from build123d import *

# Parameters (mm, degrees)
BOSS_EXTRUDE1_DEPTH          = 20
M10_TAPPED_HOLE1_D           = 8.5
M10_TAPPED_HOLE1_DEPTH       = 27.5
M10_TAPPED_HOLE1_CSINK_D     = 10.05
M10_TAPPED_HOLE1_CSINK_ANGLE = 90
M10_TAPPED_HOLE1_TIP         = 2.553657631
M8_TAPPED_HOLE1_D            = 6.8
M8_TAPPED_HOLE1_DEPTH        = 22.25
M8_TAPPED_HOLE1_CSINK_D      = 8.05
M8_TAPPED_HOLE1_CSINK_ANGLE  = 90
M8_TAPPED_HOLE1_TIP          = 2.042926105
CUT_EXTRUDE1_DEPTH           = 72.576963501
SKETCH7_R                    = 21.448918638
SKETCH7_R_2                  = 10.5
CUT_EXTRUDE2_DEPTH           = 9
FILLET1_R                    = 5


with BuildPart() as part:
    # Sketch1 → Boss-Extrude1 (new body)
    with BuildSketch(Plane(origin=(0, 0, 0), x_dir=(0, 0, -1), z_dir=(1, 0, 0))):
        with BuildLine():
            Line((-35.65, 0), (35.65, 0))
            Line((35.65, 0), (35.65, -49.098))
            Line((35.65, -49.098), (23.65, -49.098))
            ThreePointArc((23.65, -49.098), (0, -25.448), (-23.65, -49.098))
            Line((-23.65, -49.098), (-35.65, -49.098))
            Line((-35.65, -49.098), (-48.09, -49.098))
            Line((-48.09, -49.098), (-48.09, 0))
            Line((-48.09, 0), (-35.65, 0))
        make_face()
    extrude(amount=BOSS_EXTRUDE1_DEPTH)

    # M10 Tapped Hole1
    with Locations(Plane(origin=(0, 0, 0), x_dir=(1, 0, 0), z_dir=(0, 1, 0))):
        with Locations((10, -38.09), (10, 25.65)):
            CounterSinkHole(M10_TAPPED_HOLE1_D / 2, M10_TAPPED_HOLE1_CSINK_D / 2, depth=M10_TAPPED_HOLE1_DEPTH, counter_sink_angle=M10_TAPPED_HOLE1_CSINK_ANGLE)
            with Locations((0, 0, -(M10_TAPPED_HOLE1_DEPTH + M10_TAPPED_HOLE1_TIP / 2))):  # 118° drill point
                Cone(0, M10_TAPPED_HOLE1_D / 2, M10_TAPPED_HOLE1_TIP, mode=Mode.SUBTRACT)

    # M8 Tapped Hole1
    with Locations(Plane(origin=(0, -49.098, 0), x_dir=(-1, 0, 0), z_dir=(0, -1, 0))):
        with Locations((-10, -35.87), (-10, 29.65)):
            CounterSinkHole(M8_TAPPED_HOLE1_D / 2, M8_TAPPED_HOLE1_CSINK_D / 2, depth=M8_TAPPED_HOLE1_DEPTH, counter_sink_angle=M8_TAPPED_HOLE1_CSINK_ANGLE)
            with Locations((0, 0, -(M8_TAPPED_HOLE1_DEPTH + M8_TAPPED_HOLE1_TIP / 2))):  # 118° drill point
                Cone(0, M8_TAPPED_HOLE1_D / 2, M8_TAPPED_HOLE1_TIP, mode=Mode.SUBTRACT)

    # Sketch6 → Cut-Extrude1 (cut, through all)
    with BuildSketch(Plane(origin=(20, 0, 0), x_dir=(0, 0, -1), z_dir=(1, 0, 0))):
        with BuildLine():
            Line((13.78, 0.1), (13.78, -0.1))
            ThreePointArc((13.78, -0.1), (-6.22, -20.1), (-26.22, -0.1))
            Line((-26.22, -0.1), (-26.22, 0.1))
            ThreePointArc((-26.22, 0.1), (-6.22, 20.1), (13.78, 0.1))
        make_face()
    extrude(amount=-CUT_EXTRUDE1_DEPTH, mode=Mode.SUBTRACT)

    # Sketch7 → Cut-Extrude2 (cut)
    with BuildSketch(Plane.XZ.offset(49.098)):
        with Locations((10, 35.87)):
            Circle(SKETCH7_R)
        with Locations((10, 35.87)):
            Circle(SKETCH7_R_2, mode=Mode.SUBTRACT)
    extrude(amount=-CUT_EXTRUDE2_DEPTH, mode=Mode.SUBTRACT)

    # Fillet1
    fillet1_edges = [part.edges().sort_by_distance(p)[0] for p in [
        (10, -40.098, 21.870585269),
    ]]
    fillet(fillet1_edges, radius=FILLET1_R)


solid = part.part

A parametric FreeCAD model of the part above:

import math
import FreeCAD as App
import Part
import Sketcher
Q = App.Units.Quantity


def edges_at(feature, points):
    """Names of the edges that pass closest to the given points."""
    edges = feature.Shape.Edges
    near = lambda p: min(range(len(edges)), key=lambda i: edges[i].distToShape(Part.Vertex(*p))[0])
    return sorted({f"Edge{near(p) + 1}" for p in points})

doc = App.newDocument("Part")
body = doc.addObject("PartDesign::Body", "Body")

# Sketch on YZ plane
sketch1 = body.newObject("Sketcher::SketchObject", "Sketch")
sketch1.AttachmentSupport = (doc.getObject("YZ_Plane"), [""])
sketch1.MapMode = "FlatFace"
sketch1.addGeometry([
    Part.LineSegment(App.Vector(-49.098, -35.65, 0), App.Vector(0, -35.65, 0)),  # 0
    Part.LineSegment(App.Vector(0, -35.65, 0), App.Vector(0, 48.09, 0)),  # 1
    Part.LineSegment(App.Vector(0, 48.09, 0), App.Vector(-49.098, 48.09, 0)),  # 2
    Part.LineSegment(App.Vector(-49.098, 48.09, 0), App.Vector(-49.098, 23.65, 0)),  # 3
    Part.ArcOfCircle(Part.Circle(App.Vector(-49.098, 0, 0), App.Vector(0, 0, 1), 23.65), math.radians(-90), math.radians(90)),  # 4
    Part.LineSegment(App.Vector(-49.098, -23.65, 0), App.Vector(-49.098, -35.65, 0)),  # 5
], False)
sketch1.addConstraint([
    Sketcher.Constraint("Coincident", 0, 2, 1, 1),
    Sketcher.Constraint("Coincident", 1, 2, 2, 1),
    Sketcher.Constraint("Coincident", 2, 2, 3, 1),
    Sketcher.Constraint("Coincident", 3, 2, 4, 2),
    Sketcher.Constraint("Coincident", 4, 1, 5, 1),
    Sketcher.Constraint("Coincident", 5, 2, 0, 1),
    Sketcher.Constraint("Horizontal", 0),
    Sketcher.Constraint("Vertical", 1),
    Sketcher.Constraint("Horizontal", 2),
    Sketcher.Constraint("Vertical", 3),
    Sketcher.Constraint("Vertical", 5),
    Sketcher.Constraint("Symmetric", 3, 2, 4, 1, -1),
    Sketcher.Constraint("PointOnObject", 0, 2, -2),
    Sketcher.Constraint("Vertical", 4, 3, 2, 2),
    Sketcher.Constraint("DistanceY", 5, 2, 5, 1, Q("12 mm")),
    Sketcher.Constraint("Radius", 4, Q("23.65 mm")),
    Sketcher.Constraint("DistanceY", 1, 1, 1, 2, Q("83.74 mm")),
    Sketcher.Constraint("DistanceX", 0, 1, 0, 2, Q("49.098 mm")),
])
pad1 = body.newObject("PartDesign::Pad", "Pad")
pad1.Profile = sketch1
pad1.Length = 20

# Sketch on XZ plane
sketch2 = body.newObject("Sketcher::SketchObject", "Sketch001")
sketch2.AttachmentSupport = (doc.getObject("XZ_Plane"), [""])
sketch2.MapMode = "FlatFace"
sketch2.addGeometry([
    Part.Circle(App.Vector(10, 38.09, 0), App.Vector(0, 0, 1), 4.25),
    Part.Circle(App.Vector(10, -25.65, 0), App.Vector(0, 0, 1), 4.25),
], False)
sketch2.addConstraint([
    Sketcher.Constraint("Equal", 0, 1),
    Sketcher.Constraint("Vertical", 0, 3, 1, 3),
    Sketcher.Constraint("Diameter", 0, Q("8.5 mm")),
    Sketcher.Constraint("DistanceX", -1, 1, 0, 3, Q("10 mm")),
    Sketcher.Constraint("DistanceY", -1, 1, 0, 3, Q("38.09 mm")),
    Sketcher.Constraint("DistanceY", 1, 3, -1, 1, Q("25.65 mm")),
])
doc.recompute()
hole = body.newObject("PartDesign::Hole", "Hole")
hole.Profile = sketch2
hole.ThreadType = "None"
hole.Diameter = 8.5
hole.DepthType = "Dimension"
hole.Depth = 27.5
hole.DrillPoint = "Angled"
hole.DrillPointAngle = 118
hole.HoleCutType = "Countersink"
hole.HoleCutDiameter = 10.05
hole.HoleCutCountersinkAngle = 90
hole.Reversed = True

# Sketch on XZ plane
sketch3 = body.newObject("Sketcher::SketchObject", "Sketch002")
sketch3.AttachmentSupport = (doc.getObject("XZ_Plane"), [""])
sketch3.MapMode = "FlatFace"
sketch3.AttachmentOffset = App.Placement(App.Vector(0, 0, 49.098), App.Rotation())
sketch3.addGeometry([
    Part.Circle(App.Vector(10, 35.87, 0), App.Vector(0, 0, 1), 3.4),
    Part.Circle(App.Vector(10, -29.65, 0), App.Vector(0, 0, 1), 3.4),
], False)
sketch3.addConstraint([
    Sketcher.Constraint("Equal", 0, 1),
    Sketcher.Constraint("Vertical", 0, 3, 1, 3),
    Sketcher.Constraint("Diameter", 0, Q("6.8 mm")),
    Sketcher.Constraint("DistanceX", -1, 1, 0, 3, Q("10 mm")),
    Sketcher.Constraint("DistanceY", -1, 1, 0, 3, Q("35.87 mm")),
    Sketcher.Constraint("DistanceY", 1, 3, -1, 1, Q("29.65 mm")),
])
doc.recompute()
hole2 = body.newObject("PartDesign::Hole", "Hole001")
hole2.Profile = sketch3
hole2.ThreadType = "None"
hole2.Diameter = 6.8
hole2.DepthType = "Dimension"
hole2.Depth = 22.25
hole2.DrillPoint = "Angled"
hole2.DrillPointAngle = 118
hole2.HoleCutType = "Countersink"
hole2.HoleCutDiameter = 8.05
hole2.HoleCutCountersinkAngle = 90

# Sketch on YZ plane
sketch4 = body.newObject("Sketcher::SketchObject", "Sketch003")
sketch4.AttachmentSupport = (doc.getObject("YZ_Plane"), [""])
sketch4.MapMode = "FlatFace"
sketch4.AttachmentOffset = App.Placement(App.Vector(0, 0, 20), App.Rotation())
sketch4.addGeometry([
    Part.LineSegment(App.Vector(-0.1, -13.78, 0), App.Vector(0.1, -13.78, 0)),
    Part.ArcOfCircle(Part.Circle(App.Vector(0.1, 6.22, 0), App.Vector(0, 0, 1), 20), math.radians(-90), math.radians(90)),
    Part.LineSegment(App.Vector(0.1, 26.22, 0), App.Vector(-0.1, 26.22, 0)),
    Part.ArcOfCircle(Part.Circle(App.Vector(-0.1, 6.22, 0), App.Vector(0, 0, 1), 20), math.radians(90), math.radians(270)),
], False)
sketch4.addConstraint([
    Sketcher.Constraint("Tangent", 0, 2, 1, 1),
    Sketcher.Constraint("Tangent", 1, 2, 2, 1),
    Sketcher.Constraint("Tangent", 2, 2, 3, 1),
    Sketcher.Constraint("Tangent", 3, 2, 0, 1),
    Sketcher.Constraint("Horizontal", 0),
    Sketcher.Constraint("Horizontal", 2),
    Sketcher.Constraint("Radius", 1, Q("20 mm")),
    Sketcher.Constraint("DistanceX", 0, 1, 0, 2, Q("0.2 mm")),
    Sketcher.Constraint("DistanceX", -1, 1, 1, 3, Q("0.1 mm")),
    Sketcher.Constraint("DistanceY", -1, 1, 1, 3, Q("6.22 mm")),
])
pocket1 = body.newObject("PartDesign::Pocket", "Pocket")
pocket1.Profile = sketch4
pocket1.Type = "ThroughAll"

# Sketch on XZ plane
sketch5 = body.newObject("Sketcher::SketchObject", "Sketch004")
sketch5.AttachmentSupport = (doc.getObject("XZ_Plane"), [""])
sketch5.MapMode = "FlatFace"
sketch5.AttachmentOffset = App.Placement(App.Vector(0, 0, 49.098), App.Rotation())
sketch5.addGeometry([
    Part.Circle(App.Vector(10, 35.87, 0), App.Vector(0, 0, 1), 21.448919),
    Part.Circle(App.Vector(10, 35.87, 0), App.Vector(0, 0, 1), 10.5),
], False)
sketch5.addConstraint([
    Sketcher.Constraint("Coincident", 1, 3, 0, 3),
    Sketcher.Constraint("Diameter", 1, Q("21 mm")),
    Sketcher.Constraint("DistanceX", -1, 1, 0, 3, Q("10 mm")),
    Sketcher.Constraint("DistanceY", -1, 1, 0, 3, Q("35.87 mm")),
    Sketcher.Constraint("Diameter", 0, Q("42.897837 mm")),
])
pocket2 = body.newObject("PartDesign::Pocket", "Pocket001")
pocket2.Profile = sketch5
pocket2.Length = 9
doc.recompute()

fillet = body.newObject("PartDesign::Fillet", "Fillet")
fillet.Base = (pocket2, edges_at(pocket2, [(10, -40.098, 21.871)]))
fillet.Radius = 5

doc.recompute()
